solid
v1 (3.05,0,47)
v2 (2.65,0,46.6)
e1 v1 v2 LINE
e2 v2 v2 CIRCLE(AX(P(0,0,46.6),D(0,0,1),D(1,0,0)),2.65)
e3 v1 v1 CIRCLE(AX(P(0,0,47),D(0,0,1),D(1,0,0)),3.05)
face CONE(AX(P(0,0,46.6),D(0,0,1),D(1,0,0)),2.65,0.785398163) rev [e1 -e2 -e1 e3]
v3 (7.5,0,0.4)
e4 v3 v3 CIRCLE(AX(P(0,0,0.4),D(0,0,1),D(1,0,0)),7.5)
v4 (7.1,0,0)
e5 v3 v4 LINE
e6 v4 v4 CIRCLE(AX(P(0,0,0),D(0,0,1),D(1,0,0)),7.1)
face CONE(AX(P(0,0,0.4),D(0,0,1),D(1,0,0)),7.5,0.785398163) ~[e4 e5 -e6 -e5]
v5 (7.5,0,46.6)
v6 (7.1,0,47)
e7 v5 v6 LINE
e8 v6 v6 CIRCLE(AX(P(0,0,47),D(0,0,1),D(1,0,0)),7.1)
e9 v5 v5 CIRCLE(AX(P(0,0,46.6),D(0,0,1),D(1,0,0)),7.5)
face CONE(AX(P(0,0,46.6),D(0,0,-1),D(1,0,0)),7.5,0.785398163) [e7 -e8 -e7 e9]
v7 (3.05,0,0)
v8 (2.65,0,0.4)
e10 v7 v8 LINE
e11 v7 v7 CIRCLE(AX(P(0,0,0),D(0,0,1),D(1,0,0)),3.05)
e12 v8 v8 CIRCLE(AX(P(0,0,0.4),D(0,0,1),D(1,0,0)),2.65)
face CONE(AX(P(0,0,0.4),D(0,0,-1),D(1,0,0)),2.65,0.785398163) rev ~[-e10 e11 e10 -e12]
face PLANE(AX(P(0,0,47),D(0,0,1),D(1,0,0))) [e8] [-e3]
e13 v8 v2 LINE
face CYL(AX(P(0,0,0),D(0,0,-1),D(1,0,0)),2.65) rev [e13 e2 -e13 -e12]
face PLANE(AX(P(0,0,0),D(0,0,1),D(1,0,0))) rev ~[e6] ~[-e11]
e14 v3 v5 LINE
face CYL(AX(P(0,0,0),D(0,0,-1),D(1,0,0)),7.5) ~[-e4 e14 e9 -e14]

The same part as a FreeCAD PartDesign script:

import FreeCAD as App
import Part
import Sketcher

V = App.Vector
Q = App.Units.Quantity


def edges_at(feature, points):
    """Names of the edges that pass closest to the given points."""
    edges = feature.Shape.Edges
    near = lambda p: min(range(len(edges)), key=lambda i: edges[i].distToShape(Part.Vertex(*p))[0])
    return sorted({f"Edge{near(p) + 1}" for p in points})

doc = App.newDocument("Part")
body = doc.addObject("PartDesign::Body", "Body")

sketch1 = body.newObject("Sketcher::SketchObject", "Sketch")
sketch1.AttachmentSupport = (doc.getObject("XY_Plane"), [""])
sketch1.MapMode = "FlatFace"
sketch1.addGeometry(Part.Circle(V(0, 0, 0), V(0, 0, 1), 2.6), False)
sketch1.addConstraint(Sketcher.Constraint("Coincident", 0, 3, -1, 1))
sketch1.addConstraint(Sketcher.Constraint("Diameter", 0, Q("5.3 mm")))
pad1 = body.newObject("PartDesign::Pad", "Pad")
pad1.Profile = sketch1
pad1.Length = 47
body2 = doc.addObject("PartDesign::Body", "Body001")

sketch2 = body2.newObject("Sketcher::SketchObject", "Sketch001")
sketch2.AttachmentSupport = (doc.getObject("XY_Plane001"), [""])
sketch2.MapMode = "FlatFace"
sketch2.addGeometry(Part.Circle(V(0, 0, 0), V(0, 0, 1), 8), False)
sketch2.addConstraint(Sketcher.Constraint("Coincident", 0, 3, -1, 1))
sketch2.addConstraint(Sketcher.Constraint("Diameter", 0, Q("15 mm")))
pad2 = body2.newObject("PartDesign::Pad", "Pad001")
pad2.Profile = sketch2
pad2.Length = 47
doc.recompute()

boolean = body2.newObject("PartDesign::Boolean", "Boolean")
boolean.Type = "Cut"
boolean.addObjects([body])
doc.recompute()

chamfer = body2.newObject("PartDesign::Chamfer", "Chamfer")
chamfer.Base = (boolean, edges_at(boolean, [
    (-7.5, 0, 47),
    (-7.5, 0, 0),
    (-2.65, 0, 47),
    (-2.65, 0, 0),
]))
chamfer.Size = 0.4

doc.recompute()
